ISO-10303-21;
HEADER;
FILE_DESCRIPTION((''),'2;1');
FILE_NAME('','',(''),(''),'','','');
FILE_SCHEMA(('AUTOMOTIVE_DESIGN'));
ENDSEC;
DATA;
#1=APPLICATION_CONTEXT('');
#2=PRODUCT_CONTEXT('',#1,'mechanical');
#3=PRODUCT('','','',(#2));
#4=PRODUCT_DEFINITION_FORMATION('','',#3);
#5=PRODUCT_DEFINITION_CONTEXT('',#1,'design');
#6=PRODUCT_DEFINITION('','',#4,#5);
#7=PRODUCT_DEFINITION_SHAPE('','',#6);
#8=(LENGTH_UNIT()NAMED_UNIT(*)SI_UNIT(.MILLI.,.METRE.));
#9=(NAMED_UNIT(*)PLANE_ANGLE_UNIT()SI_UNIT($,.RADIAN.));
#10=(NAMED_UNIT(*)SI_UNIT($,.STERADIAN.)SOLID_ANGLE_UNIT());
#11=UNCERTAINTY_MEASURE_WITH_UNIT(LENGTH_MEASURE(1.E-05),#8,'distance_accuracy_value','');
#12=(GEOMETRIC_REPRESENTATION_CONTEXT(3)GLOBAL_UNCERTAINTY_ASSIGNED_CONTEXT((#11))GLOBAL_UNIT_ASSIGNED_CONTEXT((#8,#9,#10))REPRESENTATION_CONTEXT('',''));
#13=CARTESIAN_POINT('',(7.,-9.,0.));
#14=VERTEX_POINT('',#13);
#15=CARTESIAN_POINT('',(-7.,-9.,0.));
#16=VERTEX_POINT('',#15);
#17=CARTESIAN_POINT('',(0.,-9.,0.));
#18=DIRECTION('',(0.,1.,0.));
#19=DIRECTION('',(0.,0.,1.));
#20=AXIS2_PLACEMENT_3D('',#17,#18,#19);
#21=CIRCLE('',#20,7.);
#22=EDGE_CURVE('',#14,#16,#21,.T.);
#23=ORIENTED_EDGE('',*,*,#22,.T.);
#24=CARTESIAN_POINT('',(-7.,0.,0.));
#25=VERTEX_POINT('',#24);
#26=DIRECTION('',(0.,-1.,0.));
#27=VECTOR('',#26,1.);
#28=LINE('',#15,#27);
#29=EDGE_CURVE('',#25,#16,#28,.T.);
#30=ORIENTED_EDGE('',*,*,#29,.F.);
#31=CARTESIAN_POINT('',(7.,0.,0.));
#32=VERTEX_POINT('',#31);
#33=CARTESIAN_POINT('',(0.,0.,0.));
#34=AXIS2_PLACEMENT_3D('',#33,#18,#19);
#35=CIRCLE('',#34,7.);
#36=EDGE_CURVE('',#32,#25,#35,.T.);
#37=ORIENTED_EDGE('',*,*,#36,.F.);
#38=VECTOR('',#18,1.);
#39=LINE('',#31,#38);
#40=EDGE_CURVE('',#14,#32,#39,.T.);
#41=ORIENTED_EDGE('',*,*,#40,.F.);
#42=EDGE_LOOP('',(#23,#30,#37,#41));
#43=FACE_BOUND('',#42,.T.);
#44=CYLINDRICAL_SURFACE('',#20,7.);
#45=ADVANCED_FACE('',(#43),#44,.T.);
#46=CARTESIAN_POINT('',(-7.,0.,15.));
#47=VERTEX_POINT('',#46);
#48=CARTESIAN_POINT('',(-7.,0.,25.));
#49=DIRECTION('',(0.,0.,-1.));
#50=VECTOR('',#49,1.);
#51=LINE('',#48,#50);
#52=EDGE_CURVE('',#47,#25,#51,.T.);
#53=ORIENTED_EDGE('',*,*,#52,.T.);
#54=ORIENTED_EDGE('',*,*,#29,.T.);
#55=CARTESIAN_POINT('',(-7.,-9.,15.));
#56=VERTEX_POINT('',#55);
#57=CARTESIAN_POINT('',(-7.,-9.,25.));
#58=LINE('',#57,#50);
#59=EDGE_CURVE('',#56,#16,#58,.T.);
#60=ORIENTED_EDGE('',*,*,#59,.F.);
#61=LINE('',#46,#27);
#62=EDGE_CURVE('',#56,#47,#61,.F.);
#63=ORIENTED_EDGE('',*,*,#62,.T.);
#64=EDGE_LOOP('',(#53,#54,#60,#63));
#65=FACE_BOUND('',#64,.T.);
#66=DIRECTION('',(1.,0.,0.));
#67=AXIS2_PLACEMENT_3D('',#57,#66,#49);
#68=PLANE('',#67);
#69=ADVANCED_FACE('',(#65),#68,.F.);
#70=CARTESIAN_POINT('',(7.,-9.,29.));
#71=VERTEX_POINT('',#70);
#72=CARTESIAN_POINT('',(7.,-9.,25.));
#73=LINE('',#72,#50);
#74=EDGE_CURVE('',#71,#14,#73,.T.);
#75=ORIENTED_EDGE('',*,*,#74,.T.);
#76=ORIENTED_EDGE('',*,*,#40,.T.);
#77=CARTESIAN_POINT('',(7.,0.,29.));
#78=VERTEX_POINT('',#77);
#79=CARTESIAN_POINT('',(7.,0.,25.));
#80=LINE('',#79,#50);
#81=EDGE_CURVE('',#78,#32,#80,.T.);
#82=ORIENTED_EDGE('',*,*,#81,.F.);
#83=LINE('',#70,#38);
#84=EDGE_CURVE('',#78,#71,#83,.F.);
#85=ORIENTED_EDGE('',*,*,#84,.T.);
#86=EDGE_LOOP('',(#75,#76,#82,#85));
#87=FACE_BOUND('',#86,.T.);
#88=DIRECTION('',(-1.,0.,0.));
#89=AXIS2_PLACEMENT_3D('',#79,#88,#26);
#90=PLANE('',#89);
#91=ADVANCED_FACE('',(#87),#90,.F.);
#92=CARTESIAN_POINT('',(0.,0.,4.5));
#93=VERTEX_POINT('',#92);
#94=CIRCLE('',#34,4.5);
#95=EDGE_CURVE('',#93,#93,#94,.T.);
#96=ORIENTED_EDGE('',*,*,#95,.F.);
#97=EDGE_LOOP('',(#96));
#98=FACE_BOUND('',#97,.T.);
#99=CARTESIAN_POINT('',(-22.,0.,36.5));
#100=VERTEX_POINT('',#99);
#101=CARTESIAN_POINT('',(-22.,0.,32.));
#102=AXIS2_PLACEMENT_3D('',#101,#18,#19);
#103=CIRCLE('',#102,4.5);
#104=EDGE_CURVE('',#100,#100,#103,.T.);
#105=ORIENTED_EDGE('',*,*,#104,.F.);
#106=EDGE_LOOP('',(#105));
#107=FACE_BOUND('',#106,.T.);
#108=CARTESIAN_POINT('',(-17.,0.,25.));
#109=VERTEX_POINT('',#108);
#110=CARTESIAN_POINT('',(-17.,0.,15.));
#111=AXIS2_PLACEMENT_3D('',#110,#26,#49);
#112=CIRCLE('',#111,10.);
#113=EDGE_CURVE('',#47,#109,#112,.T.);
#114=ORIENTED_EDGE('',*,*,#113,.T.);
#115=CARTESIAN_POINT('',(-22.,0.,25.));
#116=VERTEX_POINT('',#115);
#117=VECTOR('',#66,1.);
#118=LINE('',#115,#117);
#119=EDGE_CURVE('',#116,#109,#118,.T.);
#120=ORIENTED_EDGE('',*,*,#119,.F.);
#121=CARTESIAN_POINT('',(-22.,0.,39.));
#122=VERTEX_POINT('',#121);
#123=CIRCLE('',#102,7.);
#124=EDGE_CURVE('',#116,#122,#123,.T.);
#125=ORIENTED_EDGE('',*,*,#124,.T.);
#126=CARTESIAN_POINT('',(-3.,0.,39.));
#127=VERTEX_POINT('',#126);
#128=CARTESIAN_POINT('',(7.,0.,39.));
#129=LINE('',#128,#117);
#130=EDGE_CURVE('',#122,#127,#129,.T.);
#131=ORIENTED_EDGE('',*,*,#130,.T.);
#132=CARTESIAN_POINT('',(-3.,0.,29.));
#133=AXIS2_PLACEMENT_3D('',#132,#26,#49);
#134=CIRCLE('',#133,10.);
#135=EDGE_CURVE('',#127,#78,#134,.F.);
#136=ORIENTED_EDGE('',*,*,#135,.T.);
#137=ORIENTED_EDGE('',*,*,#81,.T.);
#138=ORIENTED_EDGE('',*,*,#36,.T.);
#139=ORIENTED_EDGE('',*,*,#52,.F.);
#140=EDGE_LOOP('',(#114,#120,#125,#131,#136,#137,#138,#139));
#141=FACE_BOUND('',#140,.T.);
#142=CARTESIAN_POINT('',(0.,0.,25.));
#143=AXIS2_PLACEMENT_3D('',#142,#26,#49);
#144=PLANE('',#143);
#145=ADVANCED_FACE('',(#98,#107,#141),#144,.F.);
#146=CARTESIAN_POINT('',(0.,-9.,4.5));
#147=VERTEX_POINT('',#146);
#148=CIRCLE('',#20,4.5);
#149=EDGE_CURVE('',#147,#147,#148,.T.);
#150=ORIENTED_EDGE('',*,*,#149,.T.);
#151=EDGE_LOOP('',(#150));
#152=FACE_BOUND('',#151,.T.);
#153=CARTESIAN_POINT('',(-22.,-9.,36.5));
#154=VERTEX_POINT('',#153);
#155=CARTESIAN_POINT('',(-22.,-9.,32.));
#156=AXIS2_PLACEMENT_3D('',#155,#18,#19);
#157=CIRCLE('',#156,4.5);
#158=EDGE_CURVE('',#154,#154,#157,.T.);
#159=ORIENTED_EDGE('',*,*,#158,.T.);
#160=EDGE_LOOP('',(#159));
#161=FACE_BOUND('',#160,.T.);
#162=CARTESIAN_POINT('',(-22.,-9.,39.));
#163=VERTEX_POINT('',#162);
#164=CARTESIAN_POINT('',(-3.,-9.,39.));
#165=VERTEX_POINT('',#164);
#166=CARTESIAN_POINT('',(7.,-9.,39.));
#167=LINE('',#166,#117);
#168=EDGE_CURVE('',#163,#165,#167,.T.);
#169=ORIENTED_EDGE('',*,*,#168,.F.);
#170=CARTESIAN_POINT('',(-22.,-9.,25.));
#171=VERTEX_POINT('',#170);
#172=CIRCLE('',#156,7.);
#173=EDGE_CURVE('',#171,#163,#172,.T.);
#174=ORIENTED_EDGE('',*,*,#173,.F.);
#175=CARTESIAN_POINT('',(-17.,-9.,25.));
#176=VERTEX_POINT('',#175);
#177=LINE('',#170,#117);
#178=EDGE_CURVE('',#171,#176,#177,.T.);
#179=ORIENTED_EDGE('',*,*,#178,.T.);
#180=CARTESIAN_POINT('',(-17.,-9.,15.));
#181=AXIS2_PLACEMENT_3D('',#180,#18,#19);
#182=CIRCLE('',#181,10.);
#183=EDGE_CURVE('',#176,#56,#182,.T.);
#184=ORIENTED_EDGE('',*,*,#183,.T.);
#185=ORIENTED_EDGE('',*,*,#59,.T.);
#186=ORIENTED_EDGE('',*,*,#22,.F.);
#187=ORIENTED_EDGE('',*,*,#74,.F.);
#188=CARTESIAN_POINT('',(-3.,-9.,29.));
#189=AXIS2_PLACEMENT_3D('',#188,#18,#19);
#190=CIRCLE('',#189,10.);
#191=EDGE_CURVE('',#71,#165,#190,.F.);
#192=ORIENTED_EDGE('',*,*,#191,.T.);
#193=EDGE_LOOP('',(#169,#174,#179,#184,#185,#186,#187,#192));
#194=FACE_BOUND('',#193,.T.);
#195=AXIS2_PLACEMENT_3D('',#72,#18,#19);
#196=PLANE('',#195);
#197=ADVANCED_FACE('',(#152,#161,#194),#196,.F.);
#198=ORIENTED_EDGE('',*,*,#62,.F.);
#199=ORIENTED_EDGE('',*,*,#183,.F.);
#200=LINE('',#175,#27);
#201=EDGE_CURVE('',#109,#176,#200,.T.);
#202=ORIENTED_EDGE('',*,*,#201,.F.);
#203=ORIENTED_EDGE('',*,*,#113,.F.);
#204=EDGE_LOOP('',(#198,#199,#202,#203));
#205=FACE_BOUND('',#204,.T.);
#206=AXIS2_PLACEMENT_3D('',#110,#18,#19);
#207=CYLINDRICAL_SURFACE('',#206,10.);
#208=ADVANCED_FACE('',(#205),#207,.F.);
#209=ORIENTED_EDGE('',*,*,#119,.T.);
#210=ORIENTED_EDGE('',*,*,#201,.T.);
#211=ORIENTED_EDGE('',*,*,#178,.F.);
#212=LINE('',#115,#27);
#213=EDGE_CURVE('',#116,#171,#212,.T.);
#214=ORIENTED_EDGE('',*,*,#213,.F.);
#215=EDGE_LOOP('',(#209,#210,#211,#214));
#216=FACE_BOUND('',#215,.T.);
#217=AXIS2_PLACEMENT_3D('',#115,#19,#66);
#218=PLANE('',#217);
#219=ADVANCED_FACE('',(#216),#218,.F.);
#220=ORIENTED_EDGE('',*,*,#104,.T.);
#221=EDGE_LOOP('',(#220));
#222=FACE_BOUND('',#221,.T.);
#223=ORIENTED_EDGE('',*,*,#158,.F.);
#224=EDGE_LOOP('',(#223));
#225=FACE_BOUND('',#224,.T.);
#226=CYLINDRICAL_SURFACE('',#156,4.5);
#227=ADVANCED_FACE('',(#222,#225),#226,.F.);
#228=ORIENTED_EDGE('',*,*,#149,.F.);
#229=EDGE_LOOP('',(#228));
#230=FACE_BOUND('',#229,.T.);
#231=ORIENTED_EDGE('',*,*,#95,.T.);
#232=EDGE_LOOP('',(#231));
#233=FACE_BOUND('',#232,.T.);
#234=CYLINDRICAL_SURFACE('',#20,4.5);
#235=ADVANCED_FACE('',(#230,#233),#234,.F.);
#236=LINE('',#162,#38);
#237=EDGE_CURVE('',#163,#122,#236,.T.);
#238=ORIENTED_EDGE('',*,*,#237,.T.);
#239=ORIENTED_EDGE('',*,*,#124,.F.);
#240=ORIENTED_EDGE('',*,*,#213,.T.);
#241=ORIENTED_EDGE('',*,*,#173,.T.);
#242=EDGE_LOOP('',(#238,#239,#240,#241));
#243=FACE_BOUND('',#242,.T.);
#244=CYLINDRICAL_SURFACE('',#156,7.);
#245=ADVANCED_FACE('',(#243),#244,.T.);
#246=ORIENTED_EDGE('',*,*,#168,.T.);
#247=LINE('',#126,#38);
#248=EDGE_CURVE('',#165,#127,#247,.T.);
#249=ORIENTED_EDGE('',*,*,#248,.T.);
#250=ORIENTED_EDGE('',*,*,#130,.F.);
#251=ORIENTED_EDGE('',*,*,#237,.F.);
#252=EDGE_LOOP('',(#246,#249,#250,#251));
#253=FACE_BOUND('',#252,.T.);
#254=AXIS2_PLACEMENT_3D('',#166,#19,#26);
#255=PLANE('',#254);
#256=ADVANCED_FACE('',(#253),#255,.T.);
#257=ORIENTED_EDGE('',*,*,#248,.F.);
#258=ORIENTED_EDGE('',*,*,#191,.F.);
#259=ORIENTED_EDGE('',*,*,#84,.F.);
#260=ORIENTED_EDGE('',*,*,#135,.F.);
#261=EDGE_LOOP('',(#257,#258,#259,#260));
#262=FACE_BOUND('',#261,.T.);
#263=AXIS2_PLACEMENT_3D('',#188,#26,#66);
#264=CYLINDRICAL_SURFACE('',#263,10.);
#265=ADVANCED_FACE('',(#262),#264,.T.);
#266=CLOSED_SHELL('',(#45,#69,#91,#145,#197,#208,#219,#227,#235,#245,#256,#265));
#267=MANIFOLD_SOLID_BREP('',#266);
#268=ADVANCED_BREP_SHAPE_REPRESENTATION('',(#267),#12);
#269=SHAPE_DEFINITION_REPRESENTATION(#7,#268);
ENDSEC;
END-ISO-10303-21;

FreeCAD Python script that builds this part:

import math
import FreeCAD as App
import Part
import Sketcher
from FreeCAD import Vector


def edges_at(feature, points):
    """Names of the edges that pass closest to the given points."""
    edges = feature.Shape.Edges
    near = lambda p: min(range(len(edges)), key=lambda i: edges[i].distToShape(Part.Vertex(*p))[0])
    return sorted({f"Edge{near(p) + 1}" for p in points})

doc = App.newDocument("Part")
params = doc.addObject("Spreadsheet::Sheet", "Params")
for row, (alias, value) in enumerate([
    ("sketch1_width", "14 mm"),
    ("sketch1_height", "9 mm"),
    ("pad1_length", "25 mm"),
    ("sketch2_radius", "7 mm"),
    ("pad2_length", "9 mm"),
    ("sketch3_diameter", "9 mm"),
    ("pocket1_length", "9 mm"),
    ("sketch4_width", "9 mm"),
    ("sketch4_height", "14 mm"),
    ("pad3_length", "15 mm"),
    ("sketch5_radius", "7 mm"),
    ("pad4_length", "9 mm"),
    ("sketch6_diameter", "9 mm"),
    ("pocket2_length", "9 mm"),
    ("sketch7_width", "14 mm"),
    ("pad5_length", "9 mm"),
    ("fillet_radius", "10 mm"),
], start=1):
    params.set(f"A{row}", alias)
    params.set(f"B{row}", "=" + value)
    params.setAlias(f"B{row}", alias)

body = doc.addObject("PartDesign::Body", "Body")

sketch1 = body.newObject("Sketcher::SketchObject", "Sketch")
sketch1.AttachmentSupport = (doc.getObject("XY_Plane"), [""])
sketch1.MapMode = "FlatFace"
sketch1.addGeometry([
    Part.LineSegment(Vector(7, 0, 0), Vector(-7, 0, 0)),
    Part.LineSegment(Vector(-7, 0, 0), Vector(-7, -9, 0)),
    Part.LineSegment(Vector(-7, -9, 0), Vector(7, -9, 0)),
    Part.LineSegment(Vector(7, -9, 0), Vector(7, 0, 0)),
], False)
sketch1.addConstraint([
    Sketcher.Constraint("Coincident", 0, 2, 1, 1),
    Sketcher.Constraint("Coincident", 1, 2, 2, 1),
    Sketcher.Constraint("Coincident", 2, 2, 3, 1),
    Sketcher.Constraint("Coincident", 3, 2, 0, 1),
    Sketcher.Constraint("Horizontal", 0),
    Sketcher.Constraint("Vertical", 1),
    Sketcher.Constraint("Horizontal", 2),
    Sketcher.Constraint("Vertical", 3),
    Sketcher.Constraint("Symmetric", 0, 2, 3, 2, -1, 1),
    Sketcher.Constraint("DistanceX", 0, 2, 0, 1, 14.0),
    Sketcher.Constraint("DistanceY", 1, 2, 1, 1, 9.0),
])
sketch1.setExpression("Constraints[9]", "Params.sketch1_width")
sketch1.setExpression("Constraints[10]", "Params.sketch1_height")
pad1 = body.newObject("PartDesign::Pad", "Pad")
pad1.Profile = sketch1
pad1.setExpression("Length", "Params.pad1_length")

sketch2 = body.newObject("Sketcher::SketchObject", "Sketch001")
sketch2.AttachmentSupport = (doc.getObject("XZ_Plane"), [""])
sketch2.MapMode = "FlatFace"
sketch2.addGeometry([
    Part.LineSegment(Vector(-7, 0, 0), Vector(7, 0, 0)),
    Part.ArcOfCircle(Part.Circle(Vector(0, 0, 0), Vector(0, 0, 1), 7), math.radians(180), math.radians(360)),
], False)
sketch2.addConstraint([
    Sketcher.Constraint("Coincident", 0, 1, 1, 1),
    Sketcher.Constraint("Coincident", 1, 2, 0, 2),
    Sketcher.Constraint("Horizontal", 0),
    Sketcher.Constraint("Coincident", 1, 3, -1, 1),
    Sketcher.Constraint("PointOnObject", 0, 1, -1),
    Sketcher.Constraint("Radius", 1, 7.0),
])
sketch2.setExpression("Constraints[5]", "Params.sketch2_radius")
pad2 = body.newObject("PartDesign::Pad", "Pad001")
pad2.Profile = sketch2
pad2.setExpression("Length", "Params.pad2_length")

sketch3 = body.newObject("Sketcher::SketchObject", "Sketch002")
sketch3.AttachmentSupport = (doc.getObject("XZ_Plane"), [""])
sketch3.MapMode = "FlatFace"
sketch3.addGeometry(Part.Circle(Vector(0, 0, 0), Vector(0, 0, 1), 4.5), False)
sketch3.addConstraint([
    Sketcher.Constraint("Coincident", 0, 3, -1, 1),
    Sketcher.Constraint("Diameter", 0, 9.0),
])
sketch3.setExpression("Constraints[1]", "Params.sketch3_diameter")
pocket1 = body.newObject("PartDesign::Pocket", "Pocket")
pocket1.Profile = sketch3
pocket1.setExpression("Length", "Params.pocket1_length")
pocket1.Reversed = True
body2 = doc.addObject("PartDesign::Body", "Body001")

sketch4 = body2.newObject("Sketcher::SketchObject", "Sketch003")
sketch4.AttachmentSupport = (doc.getObject("YZ_Plane001"), [""])
sketch4.MapMode = "FlatFace"
sketch4.AttachmentOffset = App.Placement(Vector(0, 0, -7), App.Rotation())
sketch4.addGeometry([
    Part.LineSegment(Vector(0, 25, 0), Vector(-9, 25, 0)),
    Part.LineSegment(Vector(-9, 25, 0), Vector(-9, 39, 0)),
    Part.LineSegment(Vector(-9, 39, 0), Vector(0, 39, 0)),
    Part.LineSegment(Vector(0, 39, 0), Vector(0, 25, 0)),
], False)
sketch4.addConstraint([
    Sketcher.Constraint("Coincident", 0, 2, 1, 1),
    Sketcher.Constraint("Coincident", 1, 2, 2, 1),
    Sketcher.Constraint("Coincident", 2, 2, 3, 1),
    Sketcher.Constraint("Coincident", 3, 2, 0, 1),
    Sketcher.Constraint("Horizontal", 0),
    Sketcher.Constraint("Vertical", 1),
    Sketcher.Constraint("Horizontal", 2),
    Sketcher.Constraint("Vertical", 3),
    Sketcher.Constraint("PointOnObject", 2, 2, -2),
    Sketcher.Constraint("DistanceX", 0, 2, 0, 1, 9.0),
    Sketcher.Constraint("DistanceY", 1, 1, 1, 2, 14.0),
    Sketcher.Constraint("DistanceY", -1, 1, 0, 2, 25.0),
])
sketch4.setExpression("Constraints[9]", "Params.sketch4_width")
sketch4.setExpression("Constraints[10]", "Params.sketch4_height")
pad3 = body2.newObject("PartDesign::Pad", "Pad002")
pad3.Profile = sketch4
pad3.setExpression("Length", "Params.pad3_length")
pad3.Reversed = True

sketch5 = body2.newObject("Sketcher::SketchObject", "Sketch004")
sketch5.AttachmentSupport = (doc.getObject("XZ_Plane001"), [""])
sketch5.MapMode = "FlatFace"
sketch5.addGeometry([
    Part.LineSegment(Vector(-22, 39, 0), Vector(-22, 25, 0)),
    Part.ArcOfCircle(Part.Circle(Vector(-22, 32, 0), Vector(0, 0, 1), 7), math.radians(90), math.radians(270)),
], False)
sketch5.addConstraint([
    Sketcher.Constraint("Coincident", 0, 1, 1, 1),
    Sketcher.Constraint("Coincident", 1, 2, 0, 2),
    Sketcher.Constraint("Vertical", 0),
    Sketcher.Constraint("Vertical", 1, 3, 0, 1),
    Sketcher.Constraint("Radius", 1, 7.0),
    Sketcher.Constraint("DistanceX", 1, 3, -1, 1, 22.0),
    Sketcher.Constraint("DistanceY", -1, 1, 1, 3, 32.0),
])
sketch5.setExpression("Constraints[4]", "Params.sketch5_radius")
pad4 = body2.newObject("PartDesign::Pad", "Pad003")
pad4.Profile = sketch5
pad4.setExpression("Length", "Params.pad4_length")

sketch6 = body2.newObject("Sketcher::SketchObject", "Sketch005")
sketch6.AttachmentSupport = (doc.getObject("XZ_Plane001"), [""])
sketch6.MapMode = "FlatFace"
sketch6.addGeometry(Part.Circle(Vector(-22, 32, 0), Vector(0, 0, 1), 4.5), False)
sketch6.addConstraint([
    Sketcher.Constraint("Diameter", 0, 9.0),
    Sketcher.Constraint("DistanceX", 0, 3, -1, 1, 22.0),
    Sketcher.Constraint("DistanceY", -1, 1, 0, 3, 32.0),
])
sketch6.setExpression("Constraints[0]", "Params.sketch6_diameter")
pocket2 = body2.newObject("PartDesign::Pocket", "Pocket001")
pocket2.Profile = sketch6
pocket2.setExpression("Length", "Params.pocket2_length")
pocket2.Reversed = True
body.AllowCompound = True
doc.recompute()

boolean = body.newObject("PartDesign::Boolean", "Boolean")
boolean.Type = "Fuse"
boolean.addObjects([body2])

sketch7 = body.newObject("Sketcher::SketchObject", "Sketch006")
sketch7.AttachmentSupport = (doc.getObject("XZ_Plane"), [""])
sketch7.MapMode = "FlatFace"
sketch7.addGeometry([
    Part.LineSegment(Vector(-7, 25, 0), Vector(-7, 39, 0)),
    Part.LineSegment(Vector(-7, 39, 0), Vector(7, 39, 0)),
    Part.LineSegment(Vector(7, 39, 0), Vector(7, 25, 0)),
    Part.LineSegment(Vector(7, 25, 0), Vector(-7, 25, 0)),
], False)
sketch7.addConstraint([
    Sketcher.Constraint("Coincident", 0, 2, 1, 1),
    Sketcher.Constraint("Coincident", 1, 2, 2, 1),
    Sketcher.Constraint("Coincident", 2, 2, 3, 1),
    Sketcher.Constraint("Coincident", 3, 2, 0, 1),
    Sketcher.Constraint("Vertical", 0),
    Sketcher.Constraint("Horizontal", 1),
    Sketcher.Constraint("Vertical", 2),
    Sketcher.Constraint("Horizontal", 3),
    Sketcher.Constraint("Equal", 3, 0),
    Sketcher.Constraint("DistanceX", 1, 1, 1, 2, 14.0),
    Sketcher.Constraint("DistanceX", 0, 2, -1, 1, 7.0),
    Sketcher.Constraint("DistanceY", -1, 1, 0, 2, 39.0),
])
sketch7.setExpression("Constraints[9]", "Params.sketch7_width")
pad5 = body.newObject("PartDesign::Pad", "Pad004")
pad5.Profile = sketch7
pad5.setExpression("Length", "Params.pad5_length")
doc.recompute()

fillet = body.newObject("PartDesign::Fillet", "Fillet")
fillet.Base = (pad5, edges_at(pad5, [(7, -4.5, 39), (-7, -4.5, 25)]))
fillet.setExpression("Radius", "Params.fillet_radius")

doc.recompute()
